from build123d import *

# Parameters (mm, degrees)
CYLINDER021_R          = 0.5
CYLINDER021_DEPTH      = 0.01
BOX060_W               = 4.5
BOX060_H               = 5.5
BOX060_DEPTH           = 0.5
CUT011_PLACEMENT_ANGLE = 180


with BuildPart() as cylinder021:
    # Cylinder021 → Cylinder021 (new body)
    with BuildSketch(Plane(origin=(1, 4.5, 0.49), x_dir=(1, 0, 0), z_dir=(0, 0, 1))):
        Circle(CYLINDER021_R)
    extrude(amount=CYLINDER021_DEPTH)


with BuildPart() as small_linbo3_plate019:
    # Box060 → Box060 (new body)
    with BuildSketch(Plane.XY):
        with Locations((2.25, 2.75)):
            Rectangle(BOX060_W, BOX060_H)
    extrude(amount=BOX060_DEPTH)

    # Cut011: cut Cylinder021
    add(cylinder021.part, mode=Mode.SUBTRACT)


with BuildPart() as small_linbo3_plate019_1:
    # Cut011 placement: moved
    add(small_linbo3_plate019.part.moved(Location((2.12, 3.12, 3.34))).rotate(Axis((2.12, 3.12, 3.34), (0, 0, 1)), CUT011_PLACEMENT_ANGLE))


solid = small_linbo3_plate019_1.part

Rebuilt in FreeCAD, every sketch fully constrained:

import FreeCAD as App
import Part
import Sketcher

V = App.Vector
Q = App.Units.Quantity

doc = App.newDocument("Part")
body = doc.addObject("PartDesign::Body", "Body")

sketch1 = body.newObject("Sketcher::SketchObject", "Sketch")
sketch1.AttachmentSupport = (doc.getObject("XY_Plane"), [""])
sketch1.MapMode = "FlatFace"
sketch1.AttachmentOffset = App.Placement(V(0, 0, 0.49), App.Rotation())
sketch1.addGeometry(Part.Circle(V(1, 4.5, 0), V(0, 0, 1), 0.5), False)
sketch1.addConstraint([
    Sketcher.Constraint("Diameter", 0, Q("1 mm")),
    Sketcher.Constraint("DistanceX", -1, 1, 0, 3, Q("1 mm")),
    Sketcher.Constraint("DistanceY", -1, 1, 0, 3, Q("4.5 mm")),
])
pad1 = body.newObject("PartDesign::Pad", "Pad")
pad1.Profile = sketch1
pad1.Length = 0.01
body2 = doc.addObject("PartDesign::Body", "Body001")

sketch2 = body2.newObject("Sketcher::SketchObject", "Sketch001")
sketch2.AttachmentSupport = (doc.getObject("XY_Plane001"), [""])
sketch2.MapMode = "FlatFace"
sketch2.addGeometry([
    Part.LineSegment(V(0, 5.5, 0), V(0, 0, 0)),
    Part.LineSegment(V(0, 0, 0), V(4.5, 0, 0)),
    Part.LineSegment(V(4.5, 0, 0), V(4.5, 5.5, 0)),
    Part.LineSegment(V(4.5, 5.5, 0), V(0, 5.5, 0)),
], False)
sketch2.addConstraint([
    Sketcher.Constraint("Coincident", 0, 2, 1, 1),
    Sketcher.Constraint("Coincident", 1, 2, 2, 1),
    Sketcher.Constraint("Coincident", 2, 2, 3, 1),
    Sketcher.Constraint("Coincident", 3, 2, 0, 1),
    Sketcher.Constraint("Vertical", 0),
    Sketcher.Constraint("Horizontal", 1),
    Sketcher.Constraint("Vertical", 2),
    Sketcher.Constraint("Horizontal", 3),
    Sketcher.Constraint("Coincident", 0, 2, -1, 1),
    Sketcher.Constraint("DistanceX", 1, 1, 1, 2, Q("4.5 mm")),
    Sketcher.Constraint("DistanceY", 0, 2, 0, 1, Q("5.5 mm")),
])
pad2 = body2.newObject("PartDesign::Pad", "Pad001")
pad2.Profile = sketch2
pad2.Length = 0.5
doc.recompute()

boolean = body2.newObject("PartDesign::Boolean", "Boolean")
boolean.Type = "Cut"
boolean.addObjects([body])
body3 = doc.addObject("PartDesign::Body", "Body002")
doc.recompute()

body2.Placement = App.Placement(V(2.12, 3.12, 3.34), App.Rotation(V(0, 0, 1), 180))
boolean2 = body3.newObject("PartDesign::Boolean", "Boolean001")
boolean2.Type = "Fuse"
boolean2.addObjects([body2])

doc.recompute()
